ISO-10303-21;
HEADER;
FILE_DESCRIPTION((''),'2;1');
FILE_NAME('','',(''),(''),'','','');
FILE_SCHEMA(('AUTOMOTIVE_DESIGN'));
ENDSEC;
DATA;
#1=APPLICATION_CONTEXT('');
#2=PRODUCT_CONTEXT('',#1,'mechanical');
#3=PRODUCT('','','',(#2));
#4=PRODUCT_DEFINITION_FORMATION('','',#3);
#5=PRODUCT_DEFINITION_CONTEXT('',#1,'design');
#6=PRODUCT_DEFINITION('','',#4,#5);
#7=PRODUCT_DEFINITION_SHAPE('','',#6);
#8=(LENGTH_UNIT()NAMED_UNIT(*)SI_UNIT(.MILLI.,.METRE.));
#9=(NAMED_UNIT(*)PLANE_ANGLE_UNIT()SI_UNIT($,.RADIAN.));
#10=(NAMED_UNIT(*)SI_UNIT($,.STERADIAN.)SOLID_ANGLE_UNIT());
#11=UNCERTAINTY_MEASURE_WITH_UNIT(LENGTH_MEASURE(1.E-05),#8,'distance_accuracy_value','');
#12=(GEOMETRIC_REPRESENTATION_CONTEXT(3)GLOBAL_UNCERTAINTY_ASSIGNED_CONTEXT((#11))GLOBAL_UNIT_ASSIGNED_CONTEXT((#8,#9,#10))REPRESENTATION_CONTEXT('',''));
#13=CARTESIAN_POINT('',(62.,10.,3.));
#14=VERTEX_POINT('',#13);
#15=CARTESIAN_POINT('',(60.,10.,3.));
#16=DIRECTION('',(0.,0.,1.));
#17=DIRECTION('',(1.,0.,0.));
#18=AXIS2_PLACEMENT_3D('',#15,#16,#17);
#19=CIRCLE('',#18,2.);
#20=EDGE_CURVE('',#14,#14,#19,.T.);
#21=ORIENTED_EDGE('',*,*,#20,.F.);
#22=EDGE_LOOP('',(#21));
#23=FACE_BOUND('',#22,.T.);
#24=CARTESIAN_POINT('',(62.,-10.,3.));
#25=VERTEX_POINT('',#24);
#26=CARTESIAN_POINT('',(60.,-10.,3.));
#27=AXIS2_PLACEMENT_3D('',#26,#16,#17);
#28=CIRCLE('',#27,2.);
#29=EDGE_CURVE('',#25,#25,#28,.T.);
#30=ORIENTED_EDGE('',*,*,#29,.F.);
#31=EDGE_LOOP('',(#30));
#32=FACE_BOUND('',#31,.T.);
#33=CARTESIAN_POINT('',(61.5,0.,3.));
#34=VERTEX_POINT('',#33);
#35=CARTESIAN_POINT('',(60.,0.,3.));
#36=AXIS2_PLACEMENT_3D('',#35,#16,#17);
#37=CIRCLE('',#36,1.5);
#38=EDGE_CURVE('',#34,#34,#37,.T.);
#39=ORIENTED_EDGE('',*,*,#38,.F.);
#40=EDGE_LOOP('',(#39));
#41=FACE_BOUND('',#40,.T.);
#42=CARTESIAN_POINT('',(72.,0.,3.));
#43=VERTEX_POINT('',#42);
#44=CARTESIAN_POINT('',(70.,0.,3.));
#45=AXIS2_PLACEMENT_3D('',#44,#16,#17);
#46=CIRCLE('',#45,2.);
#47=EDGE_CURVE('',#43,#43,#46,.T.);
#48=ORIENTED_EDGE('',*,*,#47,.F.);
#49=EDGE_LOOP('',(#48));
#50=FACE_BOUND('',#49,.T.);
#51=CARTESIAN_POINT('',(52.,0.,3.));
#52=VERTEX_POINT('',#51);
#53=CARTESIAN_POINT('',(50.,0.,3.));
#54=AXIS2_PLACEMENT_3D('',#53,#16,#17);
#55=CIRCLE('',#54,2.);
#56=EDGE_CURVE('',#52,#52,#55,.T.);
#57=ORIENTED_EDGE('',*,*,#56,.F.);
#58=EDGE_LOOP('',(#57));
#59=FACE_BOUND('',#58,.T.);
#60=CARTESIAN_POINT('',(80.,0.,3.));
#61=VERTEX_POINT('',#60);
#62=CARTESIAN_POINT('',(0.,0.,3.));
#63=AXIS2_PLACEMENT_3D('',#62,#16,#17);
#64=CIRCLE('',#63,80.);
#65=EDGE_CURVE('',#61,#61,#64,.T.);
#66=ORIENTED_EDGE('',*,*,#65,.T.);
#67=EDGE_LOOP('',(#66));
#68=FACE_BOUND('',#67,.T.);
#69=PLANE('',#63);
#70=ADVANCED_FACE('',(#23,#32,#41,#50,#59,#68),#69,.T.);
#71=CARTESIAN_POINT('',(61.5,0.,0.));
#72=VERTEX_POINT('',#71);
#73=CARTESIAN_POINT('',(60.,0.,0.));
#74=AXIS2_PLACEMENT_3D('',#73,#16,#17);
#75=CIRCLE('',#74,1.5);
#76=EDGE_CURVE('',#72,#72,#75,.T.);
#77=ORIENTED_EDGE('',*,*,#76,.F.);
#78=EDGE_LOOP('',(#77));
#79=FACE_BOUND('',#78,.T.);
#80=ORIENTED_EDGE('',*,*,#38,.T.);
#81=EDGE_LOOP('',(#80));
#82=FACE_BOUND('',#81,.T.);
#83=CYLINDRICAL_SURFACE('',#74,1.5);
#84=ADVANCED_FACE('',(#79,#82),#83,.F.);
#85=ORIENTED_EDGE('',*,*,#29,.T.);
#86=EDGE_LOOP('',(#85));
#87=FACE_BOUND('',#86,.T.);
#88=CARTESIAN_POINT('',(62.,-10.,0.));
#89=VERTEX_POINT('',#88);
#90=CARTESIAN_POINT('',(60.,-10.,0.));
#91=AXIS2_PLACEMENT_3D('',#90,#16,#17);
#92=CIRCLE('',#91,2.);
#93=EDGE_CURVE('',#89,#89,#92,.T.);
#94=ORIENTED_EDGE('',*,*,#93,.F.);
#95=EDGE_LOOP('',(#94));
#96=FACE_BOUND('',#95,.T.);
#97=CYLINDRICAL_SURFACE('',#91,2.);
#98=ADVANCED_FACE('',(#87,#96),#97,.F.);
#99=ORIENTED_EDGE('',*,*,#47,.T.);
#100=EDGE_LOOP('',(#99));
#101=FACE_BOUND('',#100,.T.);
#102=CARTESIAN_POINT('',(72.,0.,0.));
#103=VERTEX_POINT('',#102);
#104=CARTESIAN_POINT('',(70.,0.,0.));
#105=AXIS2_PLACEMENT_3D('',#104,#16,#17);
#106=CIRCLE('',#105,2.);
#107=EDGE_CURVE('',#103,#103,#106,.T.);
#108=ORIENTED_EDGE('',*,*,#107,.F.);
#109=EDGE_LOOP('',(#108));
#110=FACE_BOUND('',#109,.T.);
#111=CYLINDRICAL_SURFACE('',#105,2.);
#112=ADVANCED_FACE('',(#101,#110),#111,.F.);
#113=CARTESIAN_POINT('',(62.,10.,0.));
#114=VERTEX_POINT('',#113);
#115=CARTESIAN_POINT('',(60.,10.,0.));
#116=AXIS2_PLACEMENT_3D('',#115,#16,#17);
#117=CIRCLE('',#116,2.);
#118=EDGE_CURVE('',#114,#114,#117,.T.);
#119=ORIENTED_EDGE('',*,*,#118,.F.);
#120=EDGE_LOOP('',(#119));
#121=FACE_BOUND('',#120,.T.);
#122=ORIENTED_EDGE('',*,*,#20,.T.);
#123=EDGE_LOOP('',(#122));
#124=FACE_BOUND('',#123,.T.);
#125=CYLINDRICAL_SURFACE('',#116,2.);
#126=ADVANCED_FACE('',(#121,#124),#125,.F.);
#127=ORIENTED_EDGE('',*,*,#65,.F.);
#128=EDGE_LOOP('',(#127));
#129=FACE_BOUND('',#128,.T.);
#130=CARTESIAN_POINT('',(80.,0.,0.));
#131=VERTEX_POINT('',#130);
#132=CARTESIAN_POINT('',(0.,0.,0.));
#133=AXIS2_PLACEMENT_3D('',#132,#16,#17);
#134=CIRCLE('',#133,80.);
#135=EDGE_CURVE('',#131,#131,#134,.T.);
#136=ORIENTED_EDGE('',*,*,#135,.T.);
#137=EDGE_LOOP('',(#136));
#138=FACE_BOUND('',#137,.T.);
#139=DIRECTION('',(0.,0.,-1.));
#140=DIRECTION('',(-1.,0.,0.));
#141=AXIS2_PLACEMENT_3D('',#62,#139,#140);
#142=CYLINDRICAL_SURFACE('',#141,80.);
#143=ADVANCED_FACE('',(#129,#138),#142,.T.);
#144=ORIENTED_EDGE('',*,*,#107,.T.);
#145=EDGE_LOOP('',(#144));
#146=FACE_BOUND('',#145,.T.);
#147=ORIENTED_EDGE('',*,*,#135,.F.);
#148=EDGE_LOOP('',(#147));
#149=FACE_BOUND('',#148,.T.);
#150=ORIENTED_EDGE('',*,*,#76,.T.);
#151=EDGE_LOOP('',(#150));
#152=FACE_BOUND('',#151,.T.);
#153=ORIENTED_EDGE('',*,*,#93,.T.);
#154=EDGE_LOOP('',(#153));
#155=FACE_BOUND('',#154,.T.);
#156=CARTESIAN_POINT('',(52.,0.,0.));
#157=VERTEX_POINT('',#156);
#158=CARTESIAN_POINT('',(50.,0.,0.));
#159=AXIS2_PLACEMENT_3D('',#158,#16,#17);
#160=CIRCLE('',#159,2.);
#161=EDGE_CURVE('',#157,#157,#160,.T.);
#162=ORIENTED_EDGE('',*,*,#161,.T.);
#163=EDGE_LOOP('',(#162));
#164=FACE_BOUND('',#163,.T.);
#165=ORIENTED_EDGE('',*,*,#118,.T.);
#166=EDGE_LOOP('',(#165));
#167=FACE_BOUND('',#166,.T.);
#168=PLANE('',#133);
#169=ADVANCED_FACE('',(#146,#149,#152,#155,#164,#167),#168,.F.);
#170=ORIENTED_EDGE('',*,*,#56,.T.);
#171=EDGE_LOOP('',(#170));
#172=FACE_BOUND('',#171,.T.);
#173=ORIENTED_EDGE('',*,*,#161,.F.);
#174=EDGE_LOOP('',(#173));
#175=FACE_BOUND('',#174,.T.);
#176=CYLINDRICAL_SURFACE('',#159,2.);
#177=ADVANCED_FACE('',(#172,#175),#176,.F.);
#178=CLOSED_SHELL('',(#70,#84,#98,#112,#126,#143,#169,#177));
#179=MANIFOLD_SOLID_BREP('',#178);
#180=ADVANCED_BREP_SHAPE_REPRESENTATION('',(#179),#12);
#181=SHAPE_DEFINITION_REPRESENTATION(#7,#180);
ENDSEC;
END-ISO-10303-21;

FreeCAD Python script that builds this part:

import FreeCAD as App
import Part
import Sketcher
from FreeCAD import Vector

doc = App.newDocument("Part")
params = doc.addObject("Spreadsheet::Sheet", "Params")
for row, (alias, value) in enumerate([
    ("sketch1_diameter", "160 mm"),
    ("pad1_length", "3 mm"),
    ("sketch2_diameter", "4 mm"),
    ("sketch2_diameter2", "3 mm"),
    ("pocket1_length", "3 mm"),
], start=1):
    params.set(f"A{row}", alias)
    params.set(f"B{row}", "=" + value)
    params.setAlias(f"B{row}", alias)

body = doc.addObject("PartDesign::Body", "Body")

# Sketch on XY plane
sketch1 = doc.addObject("Sketcher::SketchObject", "Sketch")
body.addObject(sketch1)
sketch1.AttachmentSupport = (doc.XY_Plane, [""])
sketch1.MapMode = "FlatFace"
sketch1.addGeometry(Part.Circle(Vector(0, 0, 0), Vector(0, 0, 1), 80), False)
sketch1.addConstraint(Sketcher.Constraint("Coincident", 0, 3, -1, 1))
sketch1.addConstraint(Sketcher.Constraint("Diameter", 0, 160.0))
sketch1.setExpression("Constraints[1]", "Params.sketch1_diameter")
pad1 = doc.addObject("PartDesign::Pad", "Pad")
body.addObject(pad1)
pad1.Profile = sketch1
pad1.setExpression("Length", "Params.pad1_length")

# Sketch on XY plane
sketch2 = doc.addObject("Sketcher::SketchObject", "Sketch001")
body.addObject(sketch2)
sketch2.AttachmentSupport = (doc.XY_Plane, [""])
sketch2.MapMode = "FlatFace"
sketch2.AttachmentOffset = App.Placement(Vector(0, 0, 3), App.Rotation())
sketch2.addGeometry(Part.Circle(Vector(70, 0, 0), Vector(0, 0, 1), 2), False)
sketch2.addGeometry(Part.Circle(Vector(60, -10, 0), Vector(0, 0, 1), 2), False)
sketch2.addGeometry(Part.Circle(Vector(60, 0, 0), Vector(0, 0, 1), 1.5), False)
sketch2.addGeometry(Part.Circle(Vector(50, 0, 0), Vector(0, 0, 1), 2), False)
sketch2.addGeometry(Part.Circle(Vector(60, 10, 0), Vector(0, 0, 1), 2), False)
sketch2.addConstraint(Sketcher.Constraint("Equal", 0, 1))
sketch2.addConstraint(Sketcher.Constraint("Equal", 1, 3))
sketch2.addConstraint(Sketcher.Constraint("Equal", 3, 4))
sketch2.addConstraint(Sketcher.Constraint("Symmetric", 1, 3, 4, 3, -1))
sketch2.addConstraint(Sketcher.Constraint("PointOnObject", 0, 3, -1))
sketch2.addConstraint(Sketcher.Constraint("PointOnObject", 2, 3, -1))
sketch2.addConstraint(Sketcher.Constraint("PointOnObject", 3, 3, -1))
sketch2.addConstraint(Sketcher.Constraint("Vertical", 1, 3, 2, 3))
sketch2.addConstraint(Sketcher.Constraint("Diameter", 0, 4.0))
sketch2.addConstraint(Sketcher.Constraint("Diameter", 2, 3.0))
sketch2.addConstraint(Sketcher.Constraint("DistanceX", -1, 1, 0, 3, 70.0))
sketch2.addConstraint(Sketcher.Constraint("DistanceX", -1, 1, 1, 3, 60.0))
sketch2.addConstraint(Sketcher.Constraint("DistanceY", 1, 3, -1, 1, 10.0))
sketch2.addConstraint(Sketcher.Constraint("DistanceX", -1, 1, 3, 3, 50.0))
sketch2.setExpression("Constraints[8]", "Params.sketch2_diameter")
sketch2.setExpression("Constraints[9]", "Params.sketch2_diameter2")
pocket1 = doc.addObject("PartDesign::Pocket", "Pocket")
body.addObject(pocket1)
pocket1.Profile = sketch2
pocket1.setExpression("Length", "Params.pocket1_length")

doc.recompute()
